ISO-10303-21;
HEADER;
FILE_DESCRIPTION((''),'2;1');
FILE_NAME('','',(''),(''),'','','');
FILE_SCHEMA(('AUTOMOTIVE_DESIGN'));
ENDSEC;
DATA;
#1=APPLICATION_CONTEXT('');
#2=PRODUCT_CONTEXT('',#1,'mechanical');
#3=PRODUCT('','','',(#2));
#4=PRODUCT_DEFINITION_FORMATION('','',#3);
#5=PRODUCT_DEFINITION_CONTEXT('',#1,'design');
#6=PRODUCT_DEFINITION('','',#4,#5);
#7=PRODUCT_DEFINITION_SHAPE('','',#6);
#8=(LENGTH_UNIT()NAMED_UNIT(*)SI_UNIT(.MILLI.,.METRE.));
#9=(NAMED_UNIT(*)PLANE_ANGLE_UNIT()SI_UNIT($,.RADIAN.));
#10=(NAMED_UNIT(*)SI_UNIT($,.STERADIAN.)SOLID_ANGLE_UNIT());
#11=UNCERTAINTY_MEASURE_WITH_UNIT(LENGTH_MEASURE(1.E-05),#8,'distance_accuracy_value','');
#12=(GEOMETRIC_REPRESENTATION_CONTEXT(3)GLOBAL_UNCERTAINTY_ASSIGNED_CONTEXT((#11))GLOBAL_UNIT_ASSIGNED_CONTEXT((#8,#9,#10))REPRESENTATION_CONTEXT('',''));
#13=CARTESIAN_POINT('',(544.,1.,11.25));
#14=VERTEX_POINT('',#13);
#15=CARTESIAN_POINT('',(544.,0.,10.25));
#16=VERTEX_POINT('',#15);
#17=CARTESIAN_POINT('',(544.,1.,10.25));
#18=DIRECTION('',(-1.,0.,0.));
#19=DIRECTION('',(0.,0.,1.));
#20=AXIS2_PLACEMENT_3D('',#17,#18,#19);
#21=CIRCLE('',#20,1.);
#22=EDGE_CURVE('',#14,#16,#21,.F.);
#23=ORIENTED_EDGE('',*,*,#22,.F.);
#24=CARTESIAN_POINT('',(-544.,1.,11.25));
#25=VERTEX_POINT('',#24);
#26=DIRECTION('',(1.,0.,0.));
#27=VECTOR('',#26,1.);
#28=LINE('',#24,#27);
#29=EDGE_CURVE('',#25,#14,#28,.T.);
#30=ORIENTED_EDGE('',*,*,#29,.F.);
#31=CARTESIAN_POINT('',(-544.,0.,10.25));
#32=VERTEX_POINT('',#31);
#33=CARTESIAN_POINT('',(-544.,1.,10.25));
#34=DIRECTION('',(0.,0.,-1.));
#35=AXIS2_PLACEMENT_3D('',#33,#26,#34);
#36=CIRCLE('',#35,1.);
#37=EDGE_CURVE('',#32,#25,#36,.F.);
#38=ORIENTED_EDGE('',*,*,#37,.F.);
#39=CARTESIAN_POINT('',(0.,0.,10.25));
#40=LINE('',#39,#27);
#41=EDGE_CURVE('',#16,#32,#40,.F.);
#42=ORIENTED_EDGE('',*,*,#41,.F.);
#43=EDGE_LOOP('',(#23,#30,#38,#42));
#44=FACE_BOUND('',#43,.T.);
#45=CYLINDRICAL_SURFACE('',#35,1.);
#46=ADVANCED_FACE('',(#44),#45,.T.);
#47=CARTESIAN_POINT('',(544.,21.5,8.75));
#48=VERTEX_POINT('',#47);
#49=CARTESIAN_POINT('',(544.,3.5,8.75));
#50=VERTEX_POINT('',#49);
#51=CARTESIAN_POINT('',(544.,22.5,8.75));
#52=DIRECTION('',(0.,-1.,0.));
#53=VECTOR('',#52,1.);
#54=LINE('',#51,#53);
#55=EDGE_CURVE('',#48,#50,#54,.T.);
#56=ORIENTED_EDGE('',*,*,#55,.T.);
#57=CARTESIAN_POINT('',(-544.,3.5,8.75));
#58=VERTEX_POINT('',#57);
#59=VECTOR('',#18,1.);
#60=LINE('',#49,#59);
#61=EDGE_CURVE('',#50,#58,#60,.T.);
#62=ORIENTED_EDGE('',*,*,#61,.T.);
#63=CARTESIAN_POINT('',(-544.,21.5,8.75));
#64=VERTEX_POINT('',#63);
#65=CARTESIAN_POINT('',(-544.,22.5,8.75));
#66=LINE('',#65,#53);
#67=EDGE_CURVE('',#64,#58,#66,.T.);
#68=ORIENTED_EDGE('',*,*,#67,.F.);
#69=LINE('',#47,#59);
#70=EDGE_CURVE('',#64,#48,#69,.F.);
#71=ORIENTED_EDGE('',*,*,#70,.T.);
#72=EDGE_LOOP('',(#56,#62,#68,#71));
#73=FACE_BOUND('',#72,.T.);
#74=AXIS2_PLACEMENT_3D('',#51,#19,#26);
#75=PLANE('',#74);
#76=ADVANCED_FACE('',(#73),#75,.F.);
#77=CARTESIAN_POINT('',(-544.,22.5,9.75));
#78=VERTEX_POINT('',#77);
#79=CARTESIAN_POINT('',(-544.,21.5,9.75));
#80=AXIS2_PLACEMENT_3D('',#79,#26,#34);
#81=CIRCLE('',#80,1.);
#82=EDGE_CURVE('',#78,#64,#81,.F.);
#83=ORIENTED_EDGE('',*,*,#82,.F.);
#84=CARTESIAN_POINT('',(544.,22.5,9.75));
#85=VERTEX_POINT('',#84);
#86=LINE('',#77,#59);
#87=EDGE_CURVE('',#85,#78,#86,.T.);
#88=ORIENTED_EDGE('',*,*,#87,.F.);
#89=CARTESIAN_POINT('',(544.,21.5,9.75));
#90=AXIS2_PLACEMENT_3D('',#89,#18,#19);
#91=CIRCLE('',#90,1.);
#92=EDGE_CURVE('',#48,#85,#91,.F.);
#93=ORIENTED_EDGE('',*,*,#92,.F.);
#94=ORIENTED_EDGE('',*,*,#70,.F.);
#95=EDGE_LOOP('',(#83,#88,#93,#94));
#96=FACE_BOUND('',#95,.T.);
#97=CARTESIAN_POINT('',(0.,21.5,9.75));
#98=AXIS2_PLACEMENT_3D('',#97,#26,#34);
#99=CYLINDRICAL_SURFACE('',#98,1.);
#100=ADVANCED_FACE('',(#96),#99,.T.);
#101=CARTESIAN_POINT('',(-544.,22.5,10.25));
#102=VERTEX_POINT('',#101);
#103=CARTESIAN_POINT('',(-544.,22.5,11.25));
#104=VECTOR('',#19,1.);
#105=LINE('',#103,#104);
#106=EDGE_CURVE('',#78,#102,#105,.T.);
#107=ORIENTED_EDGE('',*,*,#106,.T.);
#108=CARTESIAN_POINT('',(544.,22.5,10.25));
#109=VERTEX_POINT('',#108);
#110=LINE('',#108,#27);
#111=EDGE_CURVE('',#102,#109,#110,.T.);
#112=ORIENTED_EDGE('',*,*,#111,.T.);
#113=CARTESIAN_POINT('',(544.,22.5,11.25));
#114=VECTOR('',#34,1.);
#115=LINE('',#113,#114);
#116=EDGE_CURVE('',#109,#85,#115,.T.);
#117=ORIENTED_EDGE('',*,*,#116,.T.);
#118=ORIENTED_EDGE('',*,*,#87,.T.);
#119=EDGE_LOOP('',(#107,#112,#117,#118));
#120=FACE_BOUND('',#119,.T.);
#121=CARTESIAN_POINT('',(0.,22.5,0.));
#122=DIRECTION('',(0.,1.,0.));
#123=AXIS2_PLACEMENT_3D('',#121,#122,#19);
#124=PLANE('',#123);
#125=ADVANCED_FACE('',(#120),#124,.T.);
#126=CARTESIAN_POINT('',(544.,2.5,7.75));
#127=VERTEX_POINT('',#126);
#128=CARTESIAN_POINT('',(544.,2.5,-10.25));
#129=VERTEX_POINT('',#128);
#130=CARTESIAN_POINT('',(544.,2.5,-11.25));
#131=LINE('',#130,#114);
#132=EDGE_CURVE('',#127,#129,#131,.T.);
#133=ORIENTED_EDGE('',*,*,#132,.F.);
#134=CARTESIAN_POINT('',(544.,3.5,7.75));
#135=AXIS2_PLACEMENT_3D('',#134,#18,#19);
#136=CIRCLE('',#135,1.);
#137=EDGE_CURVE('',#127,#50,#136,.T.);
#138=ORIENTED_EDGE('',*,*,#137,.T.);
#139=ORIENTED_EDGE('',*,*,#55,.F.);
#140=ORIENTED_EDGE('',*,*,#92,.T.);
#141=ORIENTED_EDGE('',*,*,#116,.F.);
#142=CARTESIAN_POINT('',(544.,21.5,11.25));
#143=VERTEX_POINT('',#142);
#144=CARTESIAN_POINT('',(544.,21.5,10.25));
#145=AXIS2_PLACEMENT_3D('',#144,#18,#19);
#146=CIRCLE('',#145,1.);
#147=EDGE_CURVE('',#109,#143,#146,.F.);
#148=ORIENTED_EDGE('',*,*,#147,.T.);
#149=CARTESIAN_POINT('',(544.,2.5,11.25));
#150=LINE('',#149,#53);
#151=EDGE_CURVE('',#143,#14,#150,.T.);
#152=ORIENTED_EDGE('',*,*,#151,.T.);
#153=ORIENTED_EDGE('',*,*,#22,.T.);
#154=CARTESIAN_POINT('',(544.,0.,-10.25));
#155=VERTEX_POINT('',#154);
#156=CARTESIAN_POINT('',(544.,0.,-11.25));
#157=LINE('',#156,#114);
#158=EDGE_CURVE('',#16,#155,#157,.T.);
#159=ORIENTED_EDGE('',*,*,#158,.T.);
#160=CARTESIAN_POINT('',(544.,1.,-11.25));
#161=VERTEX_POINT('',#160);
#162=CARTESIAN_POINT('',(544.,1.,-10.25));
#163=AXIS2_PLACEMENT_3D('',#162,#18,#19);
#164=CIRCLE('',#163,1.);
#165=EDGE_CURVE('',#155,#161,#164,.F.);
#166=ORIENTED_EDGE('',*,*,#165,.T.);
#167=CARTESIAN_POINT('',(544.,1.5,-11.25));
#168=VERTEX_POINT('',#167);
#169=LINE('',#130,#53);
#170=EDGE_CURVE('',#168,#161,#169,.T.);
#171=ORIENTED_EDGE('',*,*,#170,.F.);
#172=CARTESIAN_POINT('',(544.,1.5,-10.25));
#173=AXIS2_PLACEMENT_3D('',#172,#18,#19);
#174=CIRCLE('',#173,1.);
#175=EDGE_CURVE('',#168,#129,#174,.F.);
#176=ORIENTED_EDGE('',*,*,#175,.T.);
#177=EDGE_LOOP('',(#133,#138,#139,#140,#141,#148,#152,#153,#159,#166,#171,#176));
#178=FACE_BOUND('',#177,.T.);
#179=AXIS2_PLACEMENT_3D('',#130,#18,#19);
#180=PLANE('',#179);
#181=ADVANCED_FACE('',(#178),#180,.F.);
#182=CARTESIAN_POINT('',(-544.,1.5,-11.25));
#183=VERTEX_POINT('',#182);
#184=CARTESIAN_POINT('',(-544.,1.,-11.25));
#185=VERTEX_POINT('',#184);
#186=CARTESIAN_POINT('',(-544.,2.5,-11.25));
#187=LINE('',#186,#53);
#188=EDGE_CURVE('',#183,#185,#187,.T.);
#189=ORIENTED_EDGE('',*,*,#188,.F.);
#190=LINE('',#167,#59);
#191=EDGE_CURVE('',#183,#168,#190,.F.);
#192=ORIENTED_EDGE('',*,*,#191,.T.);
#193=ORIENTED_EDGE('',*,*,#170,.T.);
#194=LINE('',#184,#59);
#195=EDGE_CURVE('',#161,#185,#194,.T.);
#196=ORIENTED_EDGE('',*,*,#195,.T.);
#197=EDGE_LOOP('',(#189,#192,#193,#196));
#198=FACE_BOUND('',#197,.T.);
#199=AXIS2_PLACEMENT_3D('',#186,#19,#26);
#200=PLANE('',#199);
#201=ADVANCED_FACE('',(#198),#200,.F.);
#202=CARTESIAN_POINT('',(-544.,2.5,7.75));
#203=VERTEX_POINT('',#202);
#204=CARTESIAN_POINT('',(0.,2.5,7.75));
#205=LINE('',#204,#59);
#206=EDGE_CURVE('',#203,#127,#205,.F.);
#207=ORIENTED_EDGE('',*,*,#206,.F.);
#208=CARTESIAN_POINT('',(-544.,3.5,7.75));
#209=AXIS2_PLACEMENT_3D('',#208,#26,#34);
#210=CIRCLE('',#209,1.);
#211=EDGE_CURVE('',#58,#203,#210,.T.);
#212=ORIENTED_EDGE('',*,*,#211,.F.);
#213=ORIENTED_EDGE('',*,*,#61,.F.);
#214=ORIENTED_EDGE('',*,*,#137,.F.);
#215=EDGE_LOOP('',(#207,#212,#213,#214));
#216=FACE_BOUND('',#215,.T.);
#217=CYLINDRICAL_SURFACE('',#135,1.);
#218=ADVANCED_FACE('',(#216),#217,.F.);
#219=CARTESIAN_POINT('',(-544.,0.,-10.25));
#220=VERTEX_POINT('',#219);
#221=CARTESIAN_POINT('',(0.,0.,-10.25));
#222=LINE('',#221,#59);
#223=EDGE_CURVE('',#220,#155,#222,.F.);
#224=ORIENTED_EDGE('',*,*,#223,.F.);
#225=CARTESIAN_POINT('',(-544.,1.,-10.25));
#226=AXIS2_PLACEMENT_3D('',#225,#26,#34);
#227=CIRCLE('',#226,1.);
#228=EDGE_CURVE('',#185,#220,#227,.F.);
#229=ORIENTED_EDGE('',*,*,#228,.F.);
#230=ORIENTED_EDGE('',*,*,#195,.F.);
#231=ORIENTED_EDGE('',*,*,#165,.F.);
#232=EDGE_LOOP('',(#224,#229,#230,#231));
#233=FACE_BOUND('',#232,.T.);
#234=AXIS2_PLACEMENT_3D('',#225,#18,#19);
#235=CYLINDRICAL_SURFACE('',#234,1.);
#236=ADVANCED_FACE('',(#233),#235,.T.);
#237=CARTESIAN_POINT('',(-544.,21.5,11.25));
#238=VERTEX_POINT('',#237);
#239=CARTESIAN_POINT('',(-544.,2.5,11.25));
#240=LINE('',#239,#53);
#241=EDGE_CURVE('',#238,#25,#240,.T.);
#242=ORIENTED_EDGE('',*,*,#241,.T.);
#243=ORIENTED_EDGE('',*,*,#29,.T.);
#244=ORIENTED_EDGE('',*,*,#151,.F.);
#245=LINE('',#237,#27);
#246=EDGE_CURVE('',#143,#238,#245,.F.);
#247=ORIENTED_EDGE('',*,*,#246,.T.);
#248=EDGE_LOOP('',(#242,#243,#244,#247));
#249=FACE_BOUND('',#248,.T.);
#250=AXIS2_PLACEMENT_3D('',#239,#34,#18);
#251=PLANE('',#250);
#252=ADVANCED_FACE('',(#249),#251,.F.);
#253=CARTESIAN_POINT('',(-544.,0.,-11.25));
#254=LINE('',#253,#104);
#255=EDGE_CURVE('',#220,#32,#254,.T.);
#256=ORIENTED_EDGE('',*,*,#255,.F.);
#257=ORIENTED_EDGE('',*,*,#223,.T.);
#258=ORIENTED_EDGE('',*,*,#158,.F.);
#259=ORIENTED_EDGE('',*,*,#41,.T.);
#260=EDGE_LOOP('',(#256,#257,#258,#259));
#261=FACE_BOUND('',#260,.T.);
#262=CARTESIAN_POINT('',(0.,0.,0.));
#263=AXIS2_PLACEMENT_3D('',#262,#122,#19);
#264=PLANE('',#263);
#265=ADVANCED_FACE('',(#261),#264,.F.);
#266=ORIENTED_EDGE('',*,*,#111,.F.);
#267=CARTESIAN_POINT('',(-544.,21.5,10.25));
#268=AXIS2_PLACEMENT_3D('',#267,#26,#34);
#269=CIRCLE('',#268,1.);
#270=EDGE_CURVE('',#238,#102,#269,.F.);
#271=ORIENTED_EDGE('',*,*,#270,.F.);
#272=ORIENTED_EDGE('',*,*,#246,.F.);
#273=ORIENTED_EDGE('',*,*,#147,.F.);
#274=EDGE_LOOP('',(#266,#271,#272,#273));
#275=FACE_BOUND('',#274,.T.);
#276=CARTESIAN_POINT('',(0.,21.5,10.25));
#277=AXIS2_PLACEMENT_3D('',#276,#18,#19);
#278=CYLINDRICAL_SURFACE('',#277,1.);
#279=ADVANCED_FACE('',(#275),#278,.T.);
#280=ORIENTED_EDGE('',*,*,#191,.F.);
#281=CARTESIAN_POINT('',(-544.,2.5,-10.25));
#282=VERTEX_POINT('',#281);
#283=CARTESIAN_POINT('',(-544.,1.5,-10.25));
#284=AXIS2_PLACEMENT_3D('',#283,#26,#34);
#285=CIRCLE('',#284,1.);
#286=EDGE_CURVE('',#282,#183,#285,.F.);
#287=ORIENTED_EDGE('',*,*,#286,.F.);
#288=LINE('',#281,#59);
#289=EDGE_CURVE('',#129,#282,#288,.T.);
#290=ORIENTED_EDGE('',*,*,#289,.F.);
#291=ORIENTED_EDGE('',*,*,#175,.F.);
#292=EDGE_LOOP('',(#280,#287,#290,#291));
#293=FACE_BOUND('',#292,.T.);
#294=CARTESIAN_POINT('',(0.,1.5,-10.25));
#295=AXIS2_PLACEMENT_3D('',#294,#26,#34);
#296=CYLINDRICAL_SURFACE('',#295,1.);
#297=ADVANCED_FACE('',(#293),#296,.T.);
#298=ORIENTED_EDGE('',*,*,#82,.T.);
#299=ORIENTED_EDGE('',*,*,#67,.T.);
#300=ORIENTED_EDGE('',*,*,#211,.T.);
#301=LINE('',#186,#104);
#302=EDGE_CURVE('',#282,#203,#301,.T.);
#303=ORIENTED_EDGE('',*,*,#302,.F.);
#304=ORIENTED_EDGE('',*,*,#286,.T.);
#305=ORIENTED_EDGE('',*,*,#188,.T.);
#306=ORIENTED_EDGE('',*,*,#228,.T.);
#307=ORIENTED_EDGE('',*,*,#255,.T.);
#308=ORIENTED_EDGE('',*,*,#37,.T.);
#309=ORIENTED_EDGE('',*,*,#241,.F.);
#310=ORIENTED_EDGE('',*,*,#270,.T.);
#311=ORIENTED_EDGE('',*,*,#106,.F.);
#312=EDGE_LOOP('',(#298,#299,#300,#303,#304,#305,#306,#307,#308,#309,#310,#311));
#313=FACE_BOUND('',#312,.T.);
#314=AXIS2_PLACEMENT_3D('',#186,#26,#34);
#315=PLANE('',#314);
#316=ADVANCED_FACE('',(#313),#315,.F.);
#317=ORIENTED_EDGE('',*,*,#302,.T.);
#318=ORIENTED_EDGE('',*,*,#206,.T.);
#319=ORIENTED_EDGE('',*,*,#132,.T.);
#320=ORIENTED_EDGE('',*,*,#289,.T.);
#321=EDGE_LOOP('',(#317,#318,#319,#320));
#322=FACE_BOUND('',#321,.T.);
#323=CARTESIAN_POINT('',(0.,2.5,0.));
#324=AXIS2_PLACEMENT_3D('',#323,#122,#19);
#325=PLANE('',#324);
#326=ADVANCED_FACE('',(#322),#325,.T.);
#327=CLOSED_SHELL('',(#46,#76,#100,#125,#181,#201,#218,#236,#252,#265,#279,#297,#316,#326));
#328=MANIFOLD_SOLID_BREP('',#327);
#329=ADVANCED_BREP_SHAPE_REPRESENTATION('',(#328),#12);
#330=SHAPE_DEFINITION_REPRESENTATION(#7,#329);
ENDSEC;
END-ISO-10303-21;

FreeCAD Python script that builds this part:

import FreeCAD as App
import Part
import Sketcher

V = App.Vector


def edges_at(feature, points):
    """Names of the edges that pass closest to the given points."""
    edges = feature.Shape.Edges
    near = lambda p: min(range(len(edges)), key=lambda i: edges[i].distToShape(Part.Vertex(*p))[0])
    return sorted({f"Edge{near(p) + 1}" for p in points})

doc = App.newDocument("Part")
body = doc.addObject("PartDesign::Body", "Body")

# Sketch on XZ plane
sketch1 = body.newObject("Sketcher::SketchObject", "Sketch")
sketch1.AttachmentSupport = (doc.getObject("XZ_Plane"), [""])
sketch1.MapMode = "FlatFace"
sketch1.addGeometry([
    Part.LineSegment(V(-544, -11, 0), V(-544, 11, 0)),
    Part.LineSegment(V(-544, 11, 0), V(544, 11, 0)),
    Part.LineSegment(V(544, 11, 0), V(544, -11, 0)),
    Part.LineSegment(V(544, -11, 0), V(-544, -11, 0)),
], False)
sketch1.addConstraint([
    Sketcher.Constraint("Coincident", 0, 2, 1, 1),
    Sketcher.Constraint("Coincident", 1, 2, 2, 1),
    Sketcher.Constraint("Coincident", 2, 2, 3, 1),
    Sketcher.Constraint("Coincident", 3, 2, 0, 1),
    Sketcher.Constraint("Vertical", 0),
    Sketcher.Constraint("Horizontal", 1),
    Sketcher.Constraint("Vertical", 2),
    Sketcher.Constraint("Horizontal", 3),
    Sketcher.Constraint("Symmetric", 0, 2, 2, 2, -1, 1),
    Sketcher.Constraint("DistanceX", 1, 1, 1, 2, 1088.0),
    Sketcher.Constraint("DistanceY", 0, 1, 0, 2, 22.5),
])
pad1 = body.newObject("PartDesign::Pad", "Pad")
pad1.Profile = sketch1
pad1.Length = 2.5
pad1.Reversed = True

# Sketch on XZ plane
sketch2 = body.newObject("Sketcher::SketchObject", "Sketch001")
sketch2.AttachmentSupport = (doc.getObject("XZ_Plane"), [""])
sketch2.MapMode = "FlatFace"
sketch2.AttachmentOffset = App.Placement(V(0, 0, -2.5), App.Rotation())
sketch2.addGeometry([
    Part.LineSegment(V(-544, 8.8, 0), V(-544, 11.2, 0)),
    Part.LineSegment(V(-544, 11.2, 0), V(544, 11.2, 0)),
    Part.LineSegment(V(544, 11.2, 0), V(544, 8.8, 0)),
    Part.LineSegment(V(544, 8.8, 0), V(-544, 8.8, 0)),
], False)
sketch2.addConstraint([
    Sketcher.Constraint("Coincident", 0, 2, 1, 1),
    Sketcher.Constraint("Coincident", 1, 2, 2, 1),
    Sketcher.Constraint("Coincident", 2, 2, 3, 1),
    Sketcher.Constraint("Coincident", 3, 2, 0, 1),
    Sketcher.Constraint("Vertical", 0),
    Sketcher.Constraint("Horizontal", 1),
    Sketcher.Constraint("Vertical", 2),
    Sketcher.Constraint("Horizontal", 3),
    Sketcher.Constraint("DistanceX", 1, 1, 1, 2, 1088.0),
    Sketcher.Constraint("DistanceY", 0, 1, 0, 2, 2.5),
    Sketcher.Constraint("DistanceX", 0, 2, -1, 1, 544.0),
    Sketcher.Constraint("DistanceY", -1, 1, 0, 2, 11.25),
])
pad2 = body.newObject("PartDesign::Pad", "Pad001")
pad2.Profile = sketch2
pad2.Length = 20
pad2.Reversed = True
doc.recompute()

fillet = body.newObject("PartDesign::Fillet", "Fillet")
fillet.Base = (pad2, edges_at(pad2, [
    (0, 2.5, 8.75),
    (0, 22.5, 8.75),
    (0, 22.5, 11.25),
    (0, 0, 11.25),
    (0, 0, -11.25),
    (0, 2.5, -11.25),
]))
fillet.Radius = 1

doc.recompute()
